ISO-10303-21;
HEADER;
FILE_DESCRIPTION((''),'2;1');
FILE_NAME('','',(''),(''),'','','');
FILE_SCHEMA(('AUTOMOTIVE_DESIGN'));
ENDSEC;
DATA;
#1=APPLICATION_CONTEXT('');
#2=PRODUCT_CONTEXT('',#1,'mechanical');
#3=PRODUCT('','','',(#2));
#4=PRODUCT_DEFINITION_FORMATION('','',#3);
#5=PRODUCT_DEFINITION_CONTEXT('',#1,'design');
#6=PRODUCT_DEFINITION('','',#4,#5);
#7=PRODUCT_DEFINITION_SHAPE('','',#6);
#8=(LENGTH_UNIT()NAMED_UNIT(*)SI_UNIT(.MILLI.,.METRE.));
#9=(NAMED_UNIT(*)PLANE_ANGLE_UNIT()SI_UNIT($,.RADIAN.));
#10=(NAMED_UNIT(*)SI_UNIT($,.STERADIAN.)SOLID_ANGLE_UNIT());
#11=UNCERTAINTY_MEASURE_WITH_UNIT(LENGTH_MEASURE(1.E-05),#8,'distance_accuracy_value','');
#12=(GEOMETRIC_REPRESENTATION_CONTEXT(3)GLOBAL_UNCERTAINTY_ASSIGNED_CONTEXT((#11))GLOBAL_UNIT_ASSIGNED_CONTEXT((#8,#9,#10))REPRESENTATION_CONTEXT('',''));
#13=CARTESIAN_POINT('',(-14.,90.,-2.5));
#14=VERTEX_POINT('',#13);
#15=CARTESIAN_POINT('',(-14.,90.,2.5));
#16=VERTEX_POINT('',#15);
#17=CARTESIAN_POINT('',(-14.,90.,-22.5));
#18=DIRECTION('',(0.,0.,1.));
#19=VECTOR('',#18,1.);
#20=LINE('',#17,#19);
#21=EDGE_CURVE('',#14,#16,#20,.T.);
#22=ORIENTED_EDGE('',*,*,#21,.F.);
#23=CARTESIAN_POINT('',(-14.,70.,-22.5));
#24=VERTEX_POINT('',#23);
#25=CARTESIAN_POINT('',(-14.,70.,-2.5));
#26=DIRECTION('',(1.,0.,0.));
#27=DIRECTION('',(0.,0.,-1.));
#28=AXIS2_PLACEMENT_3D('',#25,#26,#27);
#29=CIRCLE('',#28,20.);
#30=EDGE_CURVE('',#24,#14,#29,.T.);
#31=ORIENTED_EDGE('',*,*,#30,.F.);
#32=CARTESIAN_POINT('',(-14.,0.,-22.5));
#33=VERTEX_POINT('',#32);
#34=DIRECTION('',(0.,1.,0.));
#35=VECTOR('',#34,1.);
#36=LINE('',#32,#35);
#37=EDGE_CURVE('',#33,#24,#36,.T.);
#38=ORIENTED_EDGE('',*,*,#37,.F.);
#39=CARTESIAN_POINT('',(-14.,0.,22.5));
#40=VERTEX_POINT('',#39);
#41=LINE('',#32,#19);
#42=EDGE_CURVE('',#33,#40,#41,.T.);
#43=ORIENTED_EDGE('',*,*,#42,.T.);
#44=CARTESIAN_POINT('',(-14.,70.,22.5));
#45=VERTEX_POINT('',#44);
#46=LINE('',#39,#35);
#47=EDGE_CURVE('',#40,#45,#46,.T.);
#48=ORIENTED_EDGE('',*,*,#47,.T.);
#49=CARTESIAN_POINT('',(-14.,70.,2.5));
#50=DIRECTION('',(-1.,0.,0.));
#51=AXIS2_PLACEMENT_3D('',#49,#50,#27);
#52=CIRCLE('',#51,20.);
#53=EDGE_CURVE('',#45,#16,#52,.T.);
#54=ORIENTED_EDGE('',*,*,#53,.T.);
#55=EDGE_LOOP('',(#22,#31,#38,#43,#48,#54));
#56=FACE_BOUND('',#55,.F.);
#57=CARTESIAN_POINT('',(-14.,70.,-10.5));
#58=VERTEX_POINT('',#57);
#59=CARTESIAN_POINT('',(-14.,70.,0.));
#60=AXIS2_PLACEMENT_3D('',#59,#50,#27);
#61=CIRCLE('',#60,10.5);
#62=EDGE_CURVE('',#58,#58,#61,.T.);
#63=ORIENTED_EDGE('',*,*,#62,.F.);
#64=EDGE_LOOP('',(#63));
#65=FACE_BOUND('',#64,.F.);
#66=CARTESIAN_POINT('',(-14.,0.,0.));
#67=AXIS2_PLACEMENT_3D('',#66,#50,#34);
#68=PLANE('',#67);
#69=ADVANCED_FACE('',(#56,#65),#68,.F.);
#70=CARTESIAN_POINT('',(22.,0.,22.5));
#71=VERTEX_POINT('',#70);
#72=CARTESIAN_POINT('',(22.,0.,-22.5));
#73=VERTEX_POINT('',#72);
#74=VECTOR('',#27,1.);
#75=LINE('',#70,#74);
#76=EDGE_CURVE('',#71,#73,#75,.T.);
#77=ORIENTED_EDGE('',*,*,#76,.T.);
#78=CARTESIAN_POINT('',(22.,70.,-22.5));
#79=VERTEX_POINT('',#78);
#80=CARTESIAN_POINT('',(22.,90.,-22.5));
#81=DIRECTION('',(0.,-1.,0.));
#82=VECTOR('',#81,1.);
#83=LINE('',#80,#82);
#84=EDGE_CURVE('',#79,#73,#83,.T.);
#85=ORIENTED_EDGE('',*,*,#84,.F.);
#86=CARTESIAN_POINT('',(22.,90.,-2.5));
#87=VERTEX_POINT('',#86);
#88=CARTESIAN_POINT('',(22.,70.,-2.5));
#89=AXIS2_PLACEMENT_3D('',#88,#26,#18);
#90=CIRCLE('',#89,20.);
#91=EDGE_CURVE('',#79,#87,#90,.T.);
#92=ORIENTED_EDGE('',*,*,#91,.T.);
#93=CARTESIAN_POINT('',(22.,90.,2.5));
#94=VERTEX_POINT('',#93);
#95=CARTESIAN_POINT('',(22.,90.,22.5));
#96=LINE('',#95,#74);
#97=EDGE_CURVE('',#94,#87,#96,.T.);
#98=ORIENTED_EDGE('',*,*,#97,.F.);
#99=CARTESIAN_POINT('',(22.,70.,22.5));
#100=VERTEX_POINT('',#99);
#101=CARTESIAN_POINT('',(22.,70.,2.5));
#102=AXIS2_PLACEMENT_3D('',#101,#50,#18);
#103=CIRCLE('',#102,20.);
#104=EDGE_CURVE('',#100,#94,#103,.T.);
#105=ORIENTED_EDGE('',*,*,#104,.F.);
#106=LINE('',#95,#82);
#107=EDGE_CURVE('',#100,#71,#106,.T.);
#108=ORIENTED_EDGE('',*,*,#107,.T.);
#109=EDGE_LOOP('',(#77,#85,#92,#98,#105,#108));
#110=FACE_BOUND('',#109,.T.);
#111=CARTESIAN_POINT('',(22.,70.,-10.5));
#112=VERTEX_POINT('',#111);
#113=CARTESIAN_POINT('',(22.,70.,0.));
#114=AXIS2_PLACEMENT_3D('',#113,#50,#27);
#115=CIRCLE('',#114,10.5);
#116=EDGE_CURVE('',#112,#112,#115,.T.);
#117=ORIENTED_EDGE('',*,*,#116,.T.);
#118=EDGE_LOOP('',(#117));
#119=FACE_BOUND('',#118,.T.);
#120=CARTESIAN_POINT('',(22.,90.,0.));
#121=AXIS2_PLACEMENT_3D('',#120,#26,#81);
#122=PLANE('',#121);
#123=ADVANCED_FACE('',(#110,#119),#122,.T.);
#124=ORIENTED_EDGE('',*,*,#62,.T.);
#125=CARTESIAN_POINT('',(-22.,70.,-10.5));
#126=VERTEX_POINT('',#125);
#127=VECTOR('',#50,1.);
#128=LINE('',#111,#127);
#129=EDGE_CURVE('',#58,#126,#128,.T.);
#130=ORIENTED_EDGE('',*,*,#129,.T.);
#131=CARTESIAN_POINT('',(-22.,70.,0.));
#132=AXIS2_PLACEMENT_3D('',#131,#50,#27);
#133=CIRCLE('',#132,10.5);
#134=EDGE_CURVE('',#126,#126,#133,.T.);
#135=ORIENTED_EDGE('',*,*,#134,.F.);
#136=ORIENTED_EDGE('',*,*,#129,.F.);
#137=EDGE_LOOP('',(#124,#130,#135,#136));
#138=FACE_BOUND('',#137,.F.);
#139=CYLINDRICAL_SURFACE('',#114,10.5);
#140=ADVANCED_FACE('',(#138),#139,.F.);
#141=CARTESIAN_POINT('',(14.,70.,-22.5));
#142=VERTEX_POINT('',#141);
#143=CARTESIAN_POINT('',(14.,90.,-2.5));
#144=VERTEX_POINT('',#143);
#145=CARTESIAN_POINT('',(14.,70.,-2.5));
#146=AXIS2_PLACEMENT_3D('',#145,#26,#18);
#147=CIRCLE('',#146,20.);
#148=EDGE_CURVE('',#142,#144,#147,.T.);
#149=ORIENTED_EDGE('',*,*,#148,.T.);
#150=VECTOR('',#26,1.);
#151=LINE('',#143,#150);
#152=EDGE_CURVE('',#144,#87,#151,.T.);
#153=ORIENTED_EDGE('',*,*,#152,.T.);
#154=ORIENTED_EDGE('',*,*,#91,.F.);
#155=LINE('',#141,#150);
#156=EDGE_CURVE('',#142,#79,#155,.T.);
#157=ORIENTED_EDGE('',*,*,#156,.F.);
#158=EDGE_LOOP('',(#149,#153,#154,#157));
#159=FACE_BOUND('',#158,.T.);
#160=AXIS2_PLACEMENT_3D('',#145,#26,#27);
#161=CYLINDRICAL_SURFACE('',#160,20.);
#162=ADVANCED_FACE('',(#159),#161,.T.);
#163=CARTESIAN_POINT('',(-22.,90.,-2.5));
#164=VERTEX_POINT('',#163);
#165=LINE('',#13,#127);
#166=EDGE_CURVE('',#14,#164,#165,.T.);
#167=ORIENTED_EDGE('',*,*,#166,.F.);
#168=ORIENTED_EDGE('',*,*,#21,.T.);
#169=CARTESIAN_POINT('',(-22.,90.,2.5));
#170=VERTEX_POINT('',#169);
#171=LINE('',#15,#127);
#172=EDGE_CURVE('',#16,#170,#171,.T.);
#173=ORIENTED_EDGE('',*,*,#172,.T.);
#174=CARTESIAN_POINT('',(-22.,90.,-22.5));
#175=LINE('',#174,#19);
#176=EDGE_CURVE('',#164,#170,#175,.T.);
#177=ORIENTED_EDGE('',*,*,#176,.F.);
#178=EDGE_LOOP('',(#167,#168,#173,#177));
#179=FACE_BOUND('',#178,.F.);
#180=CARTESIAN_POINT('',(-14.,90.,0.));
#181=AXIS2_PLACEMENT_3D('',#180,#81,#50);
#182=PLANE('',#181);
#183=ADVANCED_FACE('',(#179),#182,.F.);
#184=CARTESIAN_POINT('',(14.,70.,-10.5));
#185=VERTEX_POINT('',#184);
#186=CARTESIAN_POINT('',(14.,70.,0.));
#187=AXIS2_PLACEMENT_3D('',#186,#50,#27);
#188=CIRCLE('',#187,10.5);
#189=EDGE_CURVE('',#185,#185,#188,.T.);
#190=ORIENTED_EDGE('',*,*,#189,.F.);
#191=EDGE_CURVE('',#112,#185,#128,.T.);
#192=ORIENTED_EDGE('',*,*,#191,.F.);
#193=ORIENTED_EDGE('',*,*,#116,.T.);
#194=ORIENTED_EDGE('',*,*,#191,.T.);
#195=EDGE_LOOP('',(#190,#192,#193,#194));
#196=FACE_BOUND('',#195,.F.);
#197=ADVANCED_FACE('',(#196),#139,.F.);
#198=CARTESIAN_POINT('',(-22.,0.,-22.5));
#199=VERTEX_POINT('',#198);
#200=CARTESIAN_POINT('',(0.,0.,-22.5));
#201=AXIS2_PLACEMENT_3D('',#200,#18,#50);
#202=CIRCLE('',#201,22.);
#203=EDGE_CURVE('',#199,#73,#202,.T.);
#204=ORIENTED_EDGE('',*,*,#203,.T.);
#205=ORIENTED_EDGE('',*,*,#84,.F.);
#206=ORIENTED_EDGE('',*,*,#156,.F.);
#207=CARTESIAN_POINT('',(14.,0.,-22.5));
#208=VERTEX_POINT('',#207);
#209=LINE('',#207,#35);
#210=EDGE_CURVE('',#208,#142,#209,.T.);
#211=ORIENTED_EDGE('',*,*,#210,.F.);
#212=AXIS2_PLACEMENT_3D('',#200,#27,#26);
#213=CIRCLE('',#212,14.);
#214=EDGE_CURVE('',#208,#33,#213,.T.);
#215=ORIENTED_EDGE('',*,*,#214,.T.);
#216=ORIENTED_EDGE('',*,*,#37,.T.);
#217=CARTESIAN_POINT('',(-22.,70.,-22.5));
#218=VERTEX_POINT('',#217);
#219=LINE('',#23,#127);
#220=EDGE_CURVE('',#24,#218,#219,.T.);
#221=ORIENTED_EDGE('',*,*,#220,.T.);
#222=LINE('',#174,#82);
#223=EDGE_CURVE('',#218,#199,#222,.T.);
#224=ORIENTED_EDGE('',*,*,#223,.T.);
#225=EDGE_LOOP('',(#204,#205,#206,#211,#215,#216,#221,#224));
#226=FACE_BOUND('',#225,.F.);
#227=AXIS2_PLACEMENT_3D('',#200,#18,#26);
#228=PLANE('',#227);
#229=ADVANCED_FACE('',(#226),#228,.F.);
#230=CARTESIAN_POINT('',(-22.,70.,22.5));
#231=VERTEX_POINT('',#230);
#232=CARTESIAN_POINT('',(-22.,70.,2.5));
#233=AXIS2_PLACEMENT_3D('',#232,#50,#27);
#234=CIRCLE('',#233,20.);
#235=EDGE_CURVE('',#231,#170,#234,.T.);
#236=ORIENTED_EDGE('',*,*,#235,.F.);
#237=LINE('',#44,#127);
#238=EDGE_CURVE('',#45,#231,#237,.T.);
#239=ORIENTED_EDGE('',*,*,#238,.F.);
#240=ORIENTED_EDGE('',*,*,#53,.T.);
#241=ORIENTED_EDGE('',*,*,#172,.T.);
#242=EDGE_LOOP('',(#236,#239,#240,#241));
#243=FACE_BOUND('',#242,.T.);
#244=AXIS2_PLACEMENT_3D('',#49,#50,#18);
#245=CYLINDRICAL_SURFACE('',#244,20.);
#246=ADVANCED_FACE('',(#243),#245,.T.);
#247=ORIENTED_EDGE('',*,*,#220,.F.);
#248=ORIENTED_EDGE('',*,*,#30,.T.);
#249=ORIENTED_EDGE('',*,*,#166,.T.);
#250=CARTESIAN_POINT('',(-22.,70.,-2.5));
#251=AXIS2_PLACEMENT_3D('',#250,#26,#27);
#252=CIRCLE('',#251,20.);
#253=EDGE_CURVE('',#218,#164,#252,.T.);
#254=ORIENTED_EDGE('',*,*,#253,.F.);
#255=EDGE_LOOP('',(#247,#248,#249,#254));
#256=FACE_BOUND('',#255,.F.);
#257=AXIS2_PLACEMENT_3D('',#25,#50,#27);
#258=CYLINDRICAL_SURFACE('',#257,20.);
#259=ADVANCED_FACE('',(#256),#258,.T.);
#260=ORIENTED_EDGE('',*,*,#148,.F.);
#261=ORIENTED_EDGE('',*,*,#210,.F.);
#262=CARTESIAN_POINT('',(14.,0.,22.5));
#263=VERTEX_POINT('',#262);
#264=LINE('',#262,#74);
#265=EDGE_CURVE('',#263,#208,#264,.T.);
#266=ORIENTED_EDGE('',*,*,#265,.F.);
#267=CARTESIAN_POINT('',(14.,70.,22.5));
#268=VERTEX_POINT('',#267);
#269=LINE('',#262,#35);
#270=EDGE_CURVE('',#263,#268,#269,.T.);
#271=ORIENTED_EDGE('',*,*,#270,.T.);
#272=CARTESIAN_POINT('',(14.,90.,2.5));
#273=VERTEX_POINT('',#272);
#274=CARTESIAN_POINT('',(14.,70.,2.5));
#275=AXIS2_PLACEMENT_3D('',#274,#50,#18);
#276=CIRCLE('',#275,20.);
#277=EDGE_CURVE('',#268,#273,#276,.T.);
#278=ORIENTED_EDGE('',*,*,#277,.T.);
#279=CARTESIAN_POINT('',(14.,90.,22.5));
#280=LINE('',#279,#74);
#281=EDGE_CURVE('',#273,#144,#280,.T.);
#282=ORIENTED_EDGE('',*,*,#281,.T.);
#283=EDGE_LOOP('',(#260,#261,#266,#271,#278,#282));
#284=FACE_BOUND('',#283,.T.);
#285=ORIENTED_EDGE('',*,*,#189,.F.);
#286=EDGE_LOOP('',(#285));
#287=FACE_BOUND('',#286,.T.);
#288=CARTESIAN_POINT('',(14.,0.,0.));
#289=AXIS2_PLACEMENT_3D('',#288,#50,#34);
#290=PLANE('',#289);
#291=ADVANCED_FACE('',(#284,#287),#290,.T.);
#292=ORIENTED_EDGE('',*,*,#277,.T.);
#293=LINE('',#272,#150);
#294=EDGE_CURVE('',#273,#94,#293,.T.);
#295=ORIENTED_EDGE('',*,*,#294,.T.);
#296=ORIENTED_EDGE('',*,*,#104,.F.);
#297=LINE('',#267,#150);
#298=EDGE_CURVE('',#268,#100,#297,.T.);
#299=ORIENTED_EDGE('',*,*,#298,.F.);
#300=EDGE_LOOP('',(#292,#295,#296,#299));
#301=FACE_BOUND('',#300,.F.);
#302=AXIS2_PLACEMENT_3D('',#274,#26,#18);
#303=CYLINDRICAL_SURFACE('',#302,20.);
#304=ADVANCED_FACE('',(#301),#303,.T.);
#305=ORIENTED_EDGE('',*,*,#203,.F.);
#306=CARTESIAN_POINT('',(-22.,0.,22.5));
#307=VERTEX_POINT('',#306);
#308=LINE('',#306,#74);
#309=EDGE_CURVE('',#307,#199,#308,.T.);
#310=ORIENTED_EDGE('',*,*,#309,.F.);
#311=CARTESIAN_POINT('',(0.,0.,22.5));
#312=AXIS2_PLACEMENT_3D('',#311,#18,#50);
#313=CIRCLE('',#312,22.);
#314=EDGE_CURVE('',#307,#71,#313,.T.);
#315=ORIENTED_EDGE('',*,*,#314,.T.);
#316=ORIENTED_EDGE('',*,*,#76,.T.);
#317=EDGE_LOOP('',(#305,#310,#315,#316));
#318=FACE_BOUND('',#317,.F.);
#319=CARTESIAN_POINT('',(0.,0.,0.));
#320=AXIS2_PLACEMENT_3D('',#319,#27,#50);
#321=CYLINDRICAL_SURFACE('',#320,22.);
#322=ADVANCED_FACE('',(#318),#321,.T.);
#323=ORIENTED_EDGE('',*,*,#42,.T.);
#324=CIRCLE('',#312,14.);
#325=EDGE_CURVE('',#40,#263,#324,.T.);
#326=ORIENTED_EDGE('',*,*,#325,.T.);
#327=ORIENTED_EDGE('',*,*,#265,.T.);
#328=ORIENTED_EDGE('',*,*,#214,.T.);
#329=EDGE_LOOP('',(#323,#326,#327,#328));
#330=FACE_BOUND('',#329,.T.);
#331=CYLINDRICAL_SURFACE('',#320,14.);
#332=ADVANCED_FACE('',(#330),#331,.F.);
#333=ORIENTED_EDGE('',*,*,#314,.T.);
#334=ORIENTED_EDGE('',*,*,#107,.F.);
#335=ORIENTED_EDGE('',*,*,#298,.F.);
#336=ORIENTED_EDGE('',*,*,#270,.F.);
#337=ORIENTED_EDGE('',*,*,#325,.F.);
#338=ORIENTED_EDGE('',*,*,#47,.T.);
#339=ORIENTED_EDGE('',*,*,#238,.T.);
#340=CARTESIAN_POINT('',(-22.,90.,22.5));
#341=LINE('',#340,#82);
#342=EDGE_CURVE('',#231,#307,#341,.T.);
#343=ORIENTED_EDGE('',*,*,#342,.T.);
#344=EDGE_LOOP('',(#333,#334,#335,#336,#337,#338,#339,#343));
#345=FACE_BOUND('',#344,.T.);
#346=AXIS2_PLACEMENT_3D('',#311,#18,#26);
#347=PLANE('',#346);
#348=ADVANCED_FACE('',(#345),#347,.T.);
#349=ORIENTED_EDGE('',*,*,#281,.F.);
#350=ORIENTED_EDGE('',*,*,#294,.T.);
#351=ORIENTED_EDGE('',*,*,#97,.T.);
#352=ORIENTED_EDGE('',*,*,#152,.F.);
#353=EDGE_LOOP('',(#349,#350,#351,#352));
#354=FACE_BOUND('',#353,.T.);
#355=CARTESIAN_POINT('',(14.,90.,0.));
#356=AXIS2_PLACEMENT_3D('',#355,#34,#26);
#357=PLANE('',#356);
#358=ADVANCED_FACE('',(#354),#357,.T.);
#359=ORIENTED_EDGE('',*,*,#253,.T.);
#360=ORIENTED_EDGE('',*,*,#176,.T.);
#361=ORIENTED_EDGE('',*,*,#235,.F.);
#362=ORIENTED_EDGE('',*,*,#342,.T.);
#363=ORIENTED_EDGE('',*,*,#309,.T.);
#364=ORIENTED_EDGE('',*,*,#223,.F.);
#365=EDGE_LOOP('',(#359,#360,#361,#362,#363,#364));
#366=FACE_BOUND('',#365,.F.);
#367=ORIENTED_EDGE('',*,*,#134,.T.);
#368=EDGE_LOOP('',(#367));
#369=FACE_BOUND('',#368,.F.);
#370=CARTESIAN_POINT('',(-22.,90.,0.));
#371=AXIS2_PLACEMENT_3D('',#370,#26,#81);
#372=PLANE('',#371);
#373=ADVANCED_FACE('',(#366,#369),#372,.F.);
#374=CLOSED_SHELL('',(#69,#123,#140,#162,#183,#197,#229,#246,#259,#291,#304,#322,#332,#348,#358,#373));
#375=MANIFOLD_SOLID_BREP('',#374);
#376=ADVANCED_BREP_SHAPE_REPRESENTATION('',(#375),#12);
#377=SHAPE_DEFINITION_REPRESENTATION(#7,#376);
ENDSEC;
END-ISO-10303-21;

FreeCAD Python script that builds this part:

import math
import FreeCAD as App
import Part
import Sketcher


def edges_at(feature, points):
    """Names of the edges that pass closest to the given points."""
    edges = feature.Shape.Edges
    near = lambda p: min(range(len(edges)), key=lambda i: edges[i].distToShape(Part.Vertex(*p))[0])
    return sorted({f"Edge{near(p) + 1}" for p in points})

doc = App.newDocument("Part")
body = doc.addObject("PartDesign::Body", "Body")

sketch1 = doc.addObject("Sketcher::SketchObject", "Sketch")
body.addObject(sketch1)
sketch1.AttachmentSupport = (doc.XY_Plane, [""])
sketch1.MapMode = "FlatFace"
sketch1.addGeometry(Part.ArcOfCircle(Part.Circle(App.Vector(0, 0, 0), App.Vector(0, 0, 1), 14), math.radians(180), math.radians(360)), False)
sketch1.addGeometry(Part.LineSegment(App.Vector(-14, 0, 0), App.Vector(-14, 90, 0)), False)
sketch1.addGeometry(Part.LineSegment(App.Vector(-14, 90, 0), App.Vector(-22, 90, 0)), False)
sketch1.addGeometry(Part.LineSegment(App.Vector(-22, 90, 0), App.Vector(-22, 0, 0)), False)
sketch1.addGeometry(Part.ArcOfCircle(Part.Circle(App.Vector(0, 0, 0), App.Vector(0, 0, 1), 22), math.radians(180), math.radians(360)), False)
sketch1.addGeometry(Part.LineSegment(App.Vector(22, 0, 0), App.Vector(22, 90, 0)), False)
sketch1.addGeometry(Part.LineSegment(App.Vector(22, 90, 0), App.Vector(14, 90, 0)), False)
sketch1.addGeometry(Part.LineSegment(App.Vector(14, 90, 0), App.Vector(14, 0, 0)), False)
sketch1.addConstraint(Sketcher.Constraint("Tangent", 0, 1, 1, 1))
sketch1.addConstraint(Sketcher.Constraint("Coincident", 1, 2, 2, 1))
sketch1.addConstraint(Sketcher.Constraint("Coincident", 2, 2, 3, 1))
sketch1.addConstraint(Sketcher.Constraint("Tangent", 3, 2, 4, 1))
sketch1.addConstraint(Sketcher.Constraint("Tangent", 4, 2, 5, 1))
sketch1.addConstraint(Sketcher.Constraint("Coincident", 5, 2, 6, 1))
sketch1.addConstraint(Sketcher.Constraint("Coincident", 6, 2, 7, 1))
sketch1.addConstraint(Sketcher.Constraint("Tangent", 7, 2, 0, 2))
sketch1.addConstraint(Sketcher.Constraint("Vertical", 1))
sketch1.addConstraint(Sketcher.Constraint("Horizontal", 2))
sketch1.addConstraint(Sketcher.Constraint("Vertical", 3))
sketch1.addConstraint(Sketcher.Constraint("Vertical", 5))
sketch1.addConstraint(Sketcher.Constraint("Horizontal", 6))
sketch1.addConstraint(Sketcher.Constraint("Vertical", 7))
sketch1.addConstraint(Sketcher.Constraint("Coincident", 0, 3, -1, 1))
sketch1.addConstraint(Sketcher.Constraint("Coincident", 4, 3, -1, 1))
sketch1.addConstraint(Sketcher.Constraint("Horizontal", 2, 2, 5, 2))
sketch1.addConstraint(Sketcher.Constraint("Radius", 0, 14.0))
sketch1.addConstraint(Sketcher.Constraint("DistanceX", 2, 2, 2, 1, 8.0))
sketch1.addConstraint(Sketcher.Constraint("DistanceY", 1, 1, 1, 2, 90.0))
pad1 = doc.addObject("PartDesign::Pad", "Pad")
body.addObject(pad1)
pad1.Profile = sketch1
pad1.Length = 45
pad1.Midplane = True

sketch2 = doc.addObject("Sketcher::SketchObject", "Sketch001")
body.addObject(sketch2)
sketch2.AttachmentSupport = (doc.YZ_Plane, [""])
sketch2.MapMode = "FlatFace"
sketch2.AttachmentOffset = App.Placement(App.Vector(0, 0, 22), App.Rotation())
sketch2.addGeometry(Part.Circle(App.Vector(70, 0, 0), App.Vector(0, 0, 1), 10), False)
sketch2.addConstraint(Sketcher.Constraint("PointOnObject", 0, 3, -1))
sketch2.addConstraint(Sketcher.Constraint("Diameter", 0, 21.0))
sketch2.addConstraint(Sketcher.Constraint("DistanceX", -1, 1, 0, 3, 70.0))
doc.recompute()
hole = doc.addObject("PartDesign::Hole", "Hole")
body.addObject(hole)
hole.Profile = sketch2
hole.ThreadType = "None"
hole.Diameter = 21
hole.DepthType = "ThroughAll"
doc.recompute()

fillet = doc.addObject("PartDesign::Fillet", "Fillet")
body.addObject(fillet)
fillet.Base = (hole, edges_at(hole, [
    (18, 90, 22.5),
    (18, 90, -22.5),
    (-18, 90, -22.5),
    (-18, 90, 22.5),
]))
fillet.Radius = 20

doc.recompute()
